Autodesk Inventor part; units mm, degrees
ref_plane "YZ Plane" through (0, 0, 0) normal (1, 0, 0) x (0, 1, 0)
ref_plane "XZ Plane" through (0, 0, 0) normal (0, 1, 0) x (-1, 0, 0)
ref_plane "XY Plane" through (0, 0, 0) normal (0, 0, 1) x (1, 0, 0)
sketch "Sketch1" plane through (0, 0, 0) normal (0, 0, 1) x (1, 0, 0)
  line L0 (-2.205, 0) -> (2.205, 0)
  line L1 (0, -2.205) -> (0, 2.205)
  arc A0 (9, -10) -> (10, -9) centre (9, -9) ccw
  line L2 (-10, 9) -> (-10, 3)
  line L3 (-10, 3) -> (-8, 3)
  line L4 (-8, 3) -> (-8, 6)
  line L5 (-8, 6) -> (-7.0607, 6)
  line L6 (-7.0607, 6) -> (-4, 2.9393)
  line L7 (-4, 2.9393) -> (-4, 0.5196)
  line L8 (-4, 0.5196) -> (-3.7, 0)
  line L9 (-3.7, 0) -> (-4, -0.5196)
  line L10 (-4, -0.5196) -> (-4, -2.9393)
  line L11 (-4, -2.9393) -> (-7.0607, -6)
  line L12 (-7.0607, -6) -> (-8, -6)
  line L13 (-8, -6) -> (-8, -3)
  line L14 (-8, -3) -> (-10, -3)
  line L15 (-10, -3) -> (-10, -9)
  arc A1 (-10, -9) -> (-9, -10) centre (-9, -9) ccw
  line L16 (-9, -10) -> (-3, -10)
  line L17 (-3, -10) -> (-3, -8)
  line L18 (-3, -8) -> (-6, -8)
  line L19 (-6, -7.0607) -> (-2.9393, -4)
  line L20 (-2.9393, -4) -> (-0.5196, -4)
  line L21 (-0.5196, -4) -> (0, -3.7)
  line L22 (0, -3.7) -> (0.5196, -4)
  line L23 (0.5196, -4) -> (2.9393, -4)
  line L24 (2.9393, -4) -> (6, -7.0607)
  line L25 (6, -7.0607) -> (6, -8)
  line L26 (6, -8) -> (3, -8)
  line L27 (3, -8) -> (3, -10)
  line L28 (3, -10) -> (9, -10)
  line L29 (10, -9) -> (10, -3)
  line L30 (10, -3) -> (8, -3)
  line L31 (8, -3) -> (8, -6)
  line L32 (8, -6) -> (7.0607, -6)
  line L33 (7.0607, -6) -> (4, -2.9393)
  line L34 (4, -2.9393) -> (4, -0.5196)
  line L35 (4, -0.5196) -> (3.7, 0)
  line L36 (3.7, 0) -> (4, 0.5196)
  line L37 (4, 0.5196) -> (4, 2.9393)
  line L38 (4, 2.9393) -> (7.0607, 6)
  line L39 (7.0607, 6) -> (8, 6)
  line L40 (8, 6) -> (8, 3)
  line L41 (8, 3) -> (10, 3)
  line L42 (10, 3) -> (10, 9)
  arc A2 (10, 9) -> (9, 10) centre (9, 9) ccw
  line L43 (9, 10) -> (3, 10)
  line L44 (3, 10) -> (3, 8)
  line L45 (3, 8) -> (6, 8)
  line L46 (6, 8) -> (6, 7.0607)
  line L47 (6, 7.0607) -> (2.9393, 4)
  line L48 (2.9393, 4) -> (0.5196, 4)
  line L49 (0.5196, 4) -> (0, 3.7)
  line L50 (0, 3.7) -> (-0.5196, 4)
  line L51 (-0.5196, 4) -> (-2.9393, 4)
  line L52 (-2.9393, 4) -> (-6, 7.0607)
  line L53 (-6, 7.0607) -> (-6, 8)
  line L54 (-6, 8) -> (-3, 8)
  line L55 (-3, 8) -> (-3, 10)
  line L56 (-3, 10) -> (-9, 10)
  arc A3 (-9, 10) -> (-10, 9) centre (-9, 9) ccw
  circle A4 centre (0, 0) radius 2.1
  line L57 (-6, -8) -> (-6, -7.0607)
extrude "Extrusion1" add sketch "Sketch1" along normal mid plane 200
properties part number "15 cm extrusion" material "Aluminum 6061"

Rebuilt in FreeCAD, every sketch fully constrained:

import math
import FreeCAD as App
import Part
import Sketcher

V = App.Vector
Q = App.Units.Quantity

doc = App.newDocument("Part")
body = doc.addObject("PartDesign::Body", "Body")

sketch1 = doc.addObject("Sketcher::SketchObject", "Sketch")
body.addObject(sketch1)
sketch1.AttachmentSupport = (doc.XY_Plane, [""])
sketch1.MapMode = "FlatFace"
sketch1.addGeometry([
    Part.LineSegment(V(3, -10, 0), V(9, -10, 0)),
    Part.ArcOfCircle(Part.Circle(V(9, -9, 0), V(0, 0, 1), 1), math.radians(-90), math.radians(0)),
    Part.LineSegment(V(10, -9, 0), V(10, -3, 0)),
    Part.LineSegment(V(10, -3, 0), V(8, -3, 0)),
    Part.LineSegment(V(8, -3, 0), V(8, -6, 0)),
    Part.LineSegment(V(8, -6, 0), V(7.0607, -6, 0)),
    Part.LineSegment(V(7.0607, -6, 0), V(4, -2.9393, 0)),
    Part.LineSegment(V(4, -2.9393, 0), V(4, -0.5196, 0)),
    Part.LineSegment(V(4, -0.5196, 0), V(3.7, 0, 0)),
    Part.LineSegment(V(3.7, 0, 0), V(4, 0.5196, 0)),
    Part.LineSegment(V(4, 0.5196, 0), V(4, 2.9393, 0)),
    Part.LineSegment(V(4, 2.9393, 0), V(7.0607, 6, 0)),
    Part.LineSegment(V(7.0607, 6, 0), V(8, 6, 0)),
    Part.LineSegment(V(8, 6, 0), V(8, 3, 0)),
    Part.LineSegment(V(8, 3, 0), V(10, 3, 0)),
    Part.LineSegment(V(10, 3, 0), V(10, 9, 0)),
    Part.ArcOfCircle(Part.Circle(V(9, 9, 0), V(0, 0, 1), 1), math.radians(0), math.radians(90)),
    Part.LineSegment(V(9, 10, 0), V(3, 10, 0)),
    Part.LineSegment(V(3, 10, 0), V(3, 8, 0)),
    Part.LineSegment(V(3, 8, 0), V(6, 8, 0)),
    Part.LineSegment(V(6, 8, 0), V(6, 7.0607, 0)),
    Part.LineSegment(V(6, 7.0607, 0), V(2.9393, 4, 0)),
    Part.LineSegment(V(2.9393, 4, 0), V(0.5196, 4, 0)),
    Part.LineSegment(V(0.5196, 4, 0), V(0, 3.7, 0)),
    Part.LineSegment(V(0, 3.7, 0), V(-0.5196, 4, 0)),
    Part.LineSegment(V(-0.5196, 4, 0), V(-2.9393, 4, 0)),
    Part.LineSegment(V(-2.9393, 4, 0), V(-6, 7.0607, 0)),
    Part.LineSegment(V(-6, 7.0607, 0), V(-6, 8, 0)),
    Part.LineSegment(V(-6, 8, 0), V(-3, 8, 0)),
    Part.LineSegment(V(-3, 8, 0), V(-3, 10, 0)),
    Part.LineSegment(V(-3, 10, 0), V(-9, 10, 0)),
    Part.ArcOfCircle(Part.Circle(V(-9, 9, 0), V(0, 0, 1), 1), math.radians(90), math.radians(180)),
    Part.LineSegment(V(-10, 9, 0), V(-10, 3, 0)),
    Part.LineSegment(V(-10, 3, 0), V(-8, 3, 0)),
    Part.LineSegment(V(-8, 3, 0), V(-8, 6, 0)),
    Part.LineSegment(V(-8, 6, 0), V(-7.0607, 6, 0)),
    Part.LineSegment(V(-7.0607, 6, 0), V(-4, 2.9393, 0)),
    Part.LineSegment(V(-4, 2.9393, 0), V(-4, 0.5196, 0)),
    Part.LineSegment(V(-4, 0.5196, 0), V(-3.7, 0, 0)),
    Part.LineSegment(V(-3.7, 0, 0), V(-4, -0.5196, 0)),
    Part.LineSegment(V(-4, -0.5196, 0), V(-4, -2.9393, 0)),
    Part.LineSegment(V(-4, -2.9393, 0), V(-7.0607, -6, 0)),
    Part.LineSegment(V(-7.0607, -6, 0), V(-8, -6, 0)),
    Part.LineSegment(V(-8, -6, 0), V(-8, -3, 0)),
    Part.LineSegment(V(-8, -3, 0), V(-10, -3, 0)),
    Part.LineSegment(V(-10, -3, 0), V(-10, -9, 0)),
    Part.ArcOfCircle(Part.Circle(V(-9, -9, 0), V(0, 0, 1), 1), math.radians(180), math.radians(270)),
    Part.LineSegment(V(-9, -10, 0), V(-3, -10, 0)),
    Part.LineSegment(V(-3, -10, 0), V(-3, -8, 0)),
    Part.LineSegment(V(-3, -8, 0), V(-6, -8, 0)),
    Part.LineSegment(V(-6, -8, 0), V(-6, -7.0607, 0)),
    Part.LineSegment(V(-6, -7.0607, 0), V(-2.9393, -4, 0)),
    Part.LineSegment(V(-2.9393, -4, 0), V(-0.5196, -4, 0)),
    Part.LineSegment(V(-0.5196, -4, 0), V(0, -3.7, 0)),
    Part.LineSegment(V(0, -3.7, 0), V(0.5196, -4, 0)),
    Part.LineSegment(V(0.5196, -4, 0), V(2.9393, -4, 0)),
    Part.LineSegment(V(2.9393, -4, 0), V(6, -7.0607, 0)),
    Part.LineSegment(V(6, -7.0607, 0), V(6, -8, 0)),
    Part.LineSegment(V(6, -8, 0), V(3, -8, 0)),
    Part.LineSegment(V(3, -8, 0), V(3, -10, 0)),
    Part.Circle(V(0, 0, 0), V(0, 0, 1), 2.1),
], False)
sketch1.addConstraint([
    Sketcher.Constraint("Tangent", 0, 2, 1, 1),
    Sketcher.Constraint("Tangent", 1, 2, 2, 1),
    Sketcher.Constraint("Coincident", 2, 2, 3, 1),
    Sketcher.Constraint("Coincident", 3, 2, 4, 1),
    Sketcher.Constraint("Coincident", 4, 2, 5, 1),
    Sketcher.Constraint("Coincident", 5, 2, 6, 1),
    Sketcher.Constraint("Coincident", 6, 2, 7, 1),
    Sketcher.Constraint("Coincident", 7, 2, 8, 1),
    Sketcher.Constraint("Coincident", 8, 2, 9, 1),
    Sketcher.Constraint("Coincident", 9, 2, 10, 1),
    Sketcher.Constraint("Coincident", 10, 2, 11, 1),
    Sketcher.Constraint("Coincident", 11, 2, 12, 1),
    Sketcher.Constraint("Coincident", 12, 2, 13, 1),
    Sketcher.Constraint("Coincident", 13, 2, 14, 1),
    Sketcher.Constraint("Coincident", 14, 2, 15, 1),
    Sketcher.Constraint("Tangent", 15, 2, 16, 1),
    Sketcher.Constraint("Tangent", 16, 2, 17, 1),
    Sketcher.Constraint("Coincident", 17, 2, 18, 1),
    Sketcher.Constraint("Coincident", 18, 2, 19, 1),
    Sketcher.Constraint("Coincident", 19, 2, 20, 1),
    Sketcher.Constraint("Coincident", 20, 2, 21, 1),
    Sketcher.Constraint("Coincident", 21, 2, 22, 1),
    Sketcher.Constraint("Coincident", 22, 2, 23, 1),
    Sketcher.Constraint("Coincident", 23, 2, 24, 1),
    Sketcher.Constraint("Coincident", 24, 2, 25, 1),
    Sketcher.Constraint("Coincident", 25, 2, 26, 1),
    Sketcher.Constraint("Coincident", 26, 2, 27, 1),
    Sketcher.Constraint("Coincident", 27, 2, 28, 1),
    Sketcher.Constraint("Coincident", 28, 2, 29, 1),
    Sketcher.Constraint("Coincident", 29, 2, 30, 1),
    Sketcher.Constraint("Tangent", 30, 2, 31, 1),
    Sketcher.Constraint("Tangent", 31, 2, 32, 1),
    Sketcher.Constraint("Coincident", 32, 2, 33, 1),
    Sketcher.Constraint("Coincident", 33, 2, 34, 1),
    Sketcher.Constraint("Coincident", 34, 2, 35, 1),
    Sketcher.Constraint("Coincident", 35, 2, 36, 1),
    Sketcher.Constraint("Coincident", 36, 2, 37, 1),
    Sketcher.Constraint("Coincident", 37, 2, 38, 1),
    Sketcher.Constraint("Coincident", 38, 2, 39, 1),
    Sketcher.Constraint("Coincident", 39, 2, 40, 1),
    Sketcher.Constraint("Coincident", 40, 2, 41, 1),
    Sketcher.Constraint("Coincident", 41, 2, 42, 1),
    Sketcher.Constraint("Coincident", 42, 2, 43, 1),
    Sketcher.Constraint("Coincident", 43, 2, 44, 1),
    Sketcher.Constraint("Coincident", 44, 2, 45, 1),
    Sketcher.Constraint("Tangent", 45, 2, 46, 1),
    Sketcher.Constraint("Tangent", 46, 2, 47, 1),
    Sketcher.Constraint("Coincident", 47, 2, 48, 1),
    Sketcher.Constraint("Coincident", 48, 2, 49, 1),
    Sketcher.Constraint("Coincident", 49, 2, 50, 1),
    Sketcher.Constraint("Coincident", 50, 2, 51, 1),
    Sketcher.Constraint("Coincident", 51, 2, 52, 1),
    Sketcher.Constraint("Coincident", 52, 2, 53, 1),
    Sketcher.Constraint("Coincident", 53, 2, 54, 1),
    Sketcher.Constraint("Coincident", 54, 2, 55, 1),
    Sketcher.Constraint("Coincident", 55, 2, 56, 1),
    Sketcher.Constraint("Coincident", 56, 2, 57, 1),
    Sketcher.Constraint("Coincident", 57, 2, 58, 1),
    Sketcher.Constraint("Coincident", 58, 2, 59, 1),
    Sketcher.Constraint("Coincident", 59, 2, 0, 1),
    Sketcher.Constraint("Horizontal", 0),
    Sketcher.Constraint("Vertical", 2),
    Sketcher.Constraint("Horizontal", 3),
    Sketcher.Constraint("Vertical", 4),
    Sketcher.Constraint("Horizontal", 5),
    Sketcher.Constraint("Vertical", 7),
    Sketcher.Constraint("Vertical", 10),
    Sketcher.Constraint("Horizontal", 12),
    Sketcher.Constraint("Vertical", 13),
    Sketcher.Constraint("Horizontal", 14),
    Sketcher.Constraint("Vertical", 15),
    Sketcher.Constraint("Horizontal", 17),
    Sketcher.Constraint("Vertical", 18),
    Sketcher.Constraint("Horizontal", 19),
    Sketcher.Constraint("Vertical", 20),
    Sketcher.Constraint("Horizontal", 22),
    Sketcher.Constraint("Horizontal", 25),
    Sketcher.Constraint("Vertical", 27),
    Sketcher.Constraint("Horizontal", 28),
    Sketcher.Constraint("Vertical", 29),
    Sketcher.Constraint("Horizontal", 30),
    Sketcher.Constraint("Vertical", 32),
    Sketcher.Constraint("Horizontal", 33),
    Sketcher.Constraint("Vertical", 34),
    Sketcher.Constraint("Horizontal", 35),
    Sketcher.Constraint("Vertical", 37),
    Sketcher.Constraint("Vertical", 40),
    Sketcher.Constraint("Horizontal", 42),
    Sketcher.Constraint("Vertical", 43),
    Sketcher.Constraint("Horizontal", 44),
    Sketcher.Constraint("Vertical", 45),
    Sketcher.Constraint("Horizontal", 47),
    Sketcher.Constraint("Vertical", 48),
    Sketcher.Constraint("Horizontal", 49),
    Sketcher.Constraint("Vertical", 50),
    Sketcher.Constraint("Horizontal", 52),
    Sketcher.Constraint("Horizontal", 55),
    Sketcher.Constraint("Vertical", 57),
    Sketcher.Constraint("Horizontal", 58),
    Sketcher.Constraint("Vertical", 59),
    Sketcher.Constraint("Coincident", 60, 3, -1, 1),
    Sketcher.Constraint("Equal", 1, 16),
    Sketcher.Constraint("Equal", 16, 31),
    Sketcher.Constraint("Equal", 31, 46),
    Sketcher.Constraint("Symmetric", 1, 3, 31, 3, -1, 1),
    Sketcher.Constraint("Symmetric", 16, 3, 46, 3, -1, 1),
    Sketcher.Constraint("Symmetric", 3, 2, 33, 2, -1, 1),
    Sketcher.Constraint("Symmetric", 5, 2, 35, 2, -1, 1),
    Sketcher.Constraint("Symmetric", 6, 2, 36, 2, -1, 1),
    Sketcher.Constraint("Symmetric", 8, 2, 38, 2, -1, 1),
    Sketcher.Constraint("Symmetric", 9, 2, 39, 2, -1, 1),
    Sketcher.Constraint("Symmetric", 11, 2, 41, 2, -1, 1),
    Sketcher.Constraint("Symmetric", 13, 2, 43, 2, -1, 1),
    Sketcher.Constraint("Symmetric", 18, 2, 48, 2, -1, 1),
    Sketcher.Constraint("Symmetric", 20, 2, 50, 2, -1, 1),
    Sketcher.Constraint("Symmetric", 21, 2, 51, 2, -1, 1),
    Sketcher.Constraint("Symmetric", 23, 2, 53, 2, -1, 1),
    Sketcher.Constraint("Symmetric", 24, 2, 54, 2, -1, 1),
    Sketcher.Constraint("Symmetric", 26, 2, 56, 2, -1, 1),
    Sketcher.Constraint("Symmetric", 28, 2, 58, 2, -1, 1),
    Sketcher.Constraint("Symmetric", 16, 3, 31, 3, -2),
    Sketcher.Constraint("Symmetric", 22, 2, 24, 2, -2),
    Sketcher.Constraint("Symmetric", 20, 2, 26, 2, -2),
    Sketcher.Constraint("Symmetric", 18, 2, 28, 2, -2),
    Sketcher.Constraint("Symmetric", 13, 2, 33, 2, -2),
    Sketcher.Constraint("Symmetric", 11, 2, 35, 2, -2),
    Sketcher.Constraint("Symmetric", 10, 2, 36, 2, -2),
    Sketcher.Constraint("PointOnObject", 8, 2, -1),
    Sketcher.Constraint("PointOnObject", 23, 2, -2),
    Sketcher.Constraint("Perpendicular", 6, 11),
    Sketcher.Constraint("Parallel", 11, 21),
    Sketcher.Constraint("Perpendicular", 8, 23),
    Sketcher.Constraint("Perpendicular", 9, 24),
    Sketcher.Constraint("Perpendicular", 21, 26),
    Sketcher.Constraint("Perpendicular", 23, 38),
    Sketcher.Constraint("Perpendicular", 36, 41),
    Sketcher.Constraint("Perpendicular", 38, 53),
    Sketcher.Constraint("Perpendicular", 51, 56),
    Sketcher.Constraint("Equal", 47, 2),
    Sketcher.Constraint("Equal", 58, 4),
    Sketcher.Constraint("Equal", 55, 7),
    Sketcher.Constraint("Equal", 44, 18),
    Sketcher.Constraint("Equal", 42, 20),
    Sketcher.Constraint("Equal", 11, 21),
    Sketcher.Constraint("Equal", 9, 23),
    Sketcher.Constraint("Radius", 1, 1.0),
    Sketcher.Constraint("Diameter", 60, 4.2),
    Sketcher.Constraint("DistanceX", 0, 1, 0, 2, 6.0),
    Sketcher.Constraint("DistanceX", 3, 2, 3, 1, 2.0),
    Sketcher.Constraint("DistanceX", 19, 1, 19, 2, 3.0),
    Sketcher.Constraint("Angle", 8, Q("120.0007 deg")),
    Sketcher.Constraint("DistanceX", -1, 1, 1, 3, 9.0),
    Sketcher.Constraint("DistanceX", -1, 1, 6, 2, 4.0),
    Sketcher.Constraint("Distance", 8, 0.6),
    Sketcher.Constraint("DistanceX", 5, 2, 5, 1, 0.9393),
])
pad1 = doc.addObject("PartDesign::Pad", "Pad")
body.addObject(pad1)
pad1.Profile = sketch1
pad1.Length = 200
pad1.Midplane = True

doc.recompute()
